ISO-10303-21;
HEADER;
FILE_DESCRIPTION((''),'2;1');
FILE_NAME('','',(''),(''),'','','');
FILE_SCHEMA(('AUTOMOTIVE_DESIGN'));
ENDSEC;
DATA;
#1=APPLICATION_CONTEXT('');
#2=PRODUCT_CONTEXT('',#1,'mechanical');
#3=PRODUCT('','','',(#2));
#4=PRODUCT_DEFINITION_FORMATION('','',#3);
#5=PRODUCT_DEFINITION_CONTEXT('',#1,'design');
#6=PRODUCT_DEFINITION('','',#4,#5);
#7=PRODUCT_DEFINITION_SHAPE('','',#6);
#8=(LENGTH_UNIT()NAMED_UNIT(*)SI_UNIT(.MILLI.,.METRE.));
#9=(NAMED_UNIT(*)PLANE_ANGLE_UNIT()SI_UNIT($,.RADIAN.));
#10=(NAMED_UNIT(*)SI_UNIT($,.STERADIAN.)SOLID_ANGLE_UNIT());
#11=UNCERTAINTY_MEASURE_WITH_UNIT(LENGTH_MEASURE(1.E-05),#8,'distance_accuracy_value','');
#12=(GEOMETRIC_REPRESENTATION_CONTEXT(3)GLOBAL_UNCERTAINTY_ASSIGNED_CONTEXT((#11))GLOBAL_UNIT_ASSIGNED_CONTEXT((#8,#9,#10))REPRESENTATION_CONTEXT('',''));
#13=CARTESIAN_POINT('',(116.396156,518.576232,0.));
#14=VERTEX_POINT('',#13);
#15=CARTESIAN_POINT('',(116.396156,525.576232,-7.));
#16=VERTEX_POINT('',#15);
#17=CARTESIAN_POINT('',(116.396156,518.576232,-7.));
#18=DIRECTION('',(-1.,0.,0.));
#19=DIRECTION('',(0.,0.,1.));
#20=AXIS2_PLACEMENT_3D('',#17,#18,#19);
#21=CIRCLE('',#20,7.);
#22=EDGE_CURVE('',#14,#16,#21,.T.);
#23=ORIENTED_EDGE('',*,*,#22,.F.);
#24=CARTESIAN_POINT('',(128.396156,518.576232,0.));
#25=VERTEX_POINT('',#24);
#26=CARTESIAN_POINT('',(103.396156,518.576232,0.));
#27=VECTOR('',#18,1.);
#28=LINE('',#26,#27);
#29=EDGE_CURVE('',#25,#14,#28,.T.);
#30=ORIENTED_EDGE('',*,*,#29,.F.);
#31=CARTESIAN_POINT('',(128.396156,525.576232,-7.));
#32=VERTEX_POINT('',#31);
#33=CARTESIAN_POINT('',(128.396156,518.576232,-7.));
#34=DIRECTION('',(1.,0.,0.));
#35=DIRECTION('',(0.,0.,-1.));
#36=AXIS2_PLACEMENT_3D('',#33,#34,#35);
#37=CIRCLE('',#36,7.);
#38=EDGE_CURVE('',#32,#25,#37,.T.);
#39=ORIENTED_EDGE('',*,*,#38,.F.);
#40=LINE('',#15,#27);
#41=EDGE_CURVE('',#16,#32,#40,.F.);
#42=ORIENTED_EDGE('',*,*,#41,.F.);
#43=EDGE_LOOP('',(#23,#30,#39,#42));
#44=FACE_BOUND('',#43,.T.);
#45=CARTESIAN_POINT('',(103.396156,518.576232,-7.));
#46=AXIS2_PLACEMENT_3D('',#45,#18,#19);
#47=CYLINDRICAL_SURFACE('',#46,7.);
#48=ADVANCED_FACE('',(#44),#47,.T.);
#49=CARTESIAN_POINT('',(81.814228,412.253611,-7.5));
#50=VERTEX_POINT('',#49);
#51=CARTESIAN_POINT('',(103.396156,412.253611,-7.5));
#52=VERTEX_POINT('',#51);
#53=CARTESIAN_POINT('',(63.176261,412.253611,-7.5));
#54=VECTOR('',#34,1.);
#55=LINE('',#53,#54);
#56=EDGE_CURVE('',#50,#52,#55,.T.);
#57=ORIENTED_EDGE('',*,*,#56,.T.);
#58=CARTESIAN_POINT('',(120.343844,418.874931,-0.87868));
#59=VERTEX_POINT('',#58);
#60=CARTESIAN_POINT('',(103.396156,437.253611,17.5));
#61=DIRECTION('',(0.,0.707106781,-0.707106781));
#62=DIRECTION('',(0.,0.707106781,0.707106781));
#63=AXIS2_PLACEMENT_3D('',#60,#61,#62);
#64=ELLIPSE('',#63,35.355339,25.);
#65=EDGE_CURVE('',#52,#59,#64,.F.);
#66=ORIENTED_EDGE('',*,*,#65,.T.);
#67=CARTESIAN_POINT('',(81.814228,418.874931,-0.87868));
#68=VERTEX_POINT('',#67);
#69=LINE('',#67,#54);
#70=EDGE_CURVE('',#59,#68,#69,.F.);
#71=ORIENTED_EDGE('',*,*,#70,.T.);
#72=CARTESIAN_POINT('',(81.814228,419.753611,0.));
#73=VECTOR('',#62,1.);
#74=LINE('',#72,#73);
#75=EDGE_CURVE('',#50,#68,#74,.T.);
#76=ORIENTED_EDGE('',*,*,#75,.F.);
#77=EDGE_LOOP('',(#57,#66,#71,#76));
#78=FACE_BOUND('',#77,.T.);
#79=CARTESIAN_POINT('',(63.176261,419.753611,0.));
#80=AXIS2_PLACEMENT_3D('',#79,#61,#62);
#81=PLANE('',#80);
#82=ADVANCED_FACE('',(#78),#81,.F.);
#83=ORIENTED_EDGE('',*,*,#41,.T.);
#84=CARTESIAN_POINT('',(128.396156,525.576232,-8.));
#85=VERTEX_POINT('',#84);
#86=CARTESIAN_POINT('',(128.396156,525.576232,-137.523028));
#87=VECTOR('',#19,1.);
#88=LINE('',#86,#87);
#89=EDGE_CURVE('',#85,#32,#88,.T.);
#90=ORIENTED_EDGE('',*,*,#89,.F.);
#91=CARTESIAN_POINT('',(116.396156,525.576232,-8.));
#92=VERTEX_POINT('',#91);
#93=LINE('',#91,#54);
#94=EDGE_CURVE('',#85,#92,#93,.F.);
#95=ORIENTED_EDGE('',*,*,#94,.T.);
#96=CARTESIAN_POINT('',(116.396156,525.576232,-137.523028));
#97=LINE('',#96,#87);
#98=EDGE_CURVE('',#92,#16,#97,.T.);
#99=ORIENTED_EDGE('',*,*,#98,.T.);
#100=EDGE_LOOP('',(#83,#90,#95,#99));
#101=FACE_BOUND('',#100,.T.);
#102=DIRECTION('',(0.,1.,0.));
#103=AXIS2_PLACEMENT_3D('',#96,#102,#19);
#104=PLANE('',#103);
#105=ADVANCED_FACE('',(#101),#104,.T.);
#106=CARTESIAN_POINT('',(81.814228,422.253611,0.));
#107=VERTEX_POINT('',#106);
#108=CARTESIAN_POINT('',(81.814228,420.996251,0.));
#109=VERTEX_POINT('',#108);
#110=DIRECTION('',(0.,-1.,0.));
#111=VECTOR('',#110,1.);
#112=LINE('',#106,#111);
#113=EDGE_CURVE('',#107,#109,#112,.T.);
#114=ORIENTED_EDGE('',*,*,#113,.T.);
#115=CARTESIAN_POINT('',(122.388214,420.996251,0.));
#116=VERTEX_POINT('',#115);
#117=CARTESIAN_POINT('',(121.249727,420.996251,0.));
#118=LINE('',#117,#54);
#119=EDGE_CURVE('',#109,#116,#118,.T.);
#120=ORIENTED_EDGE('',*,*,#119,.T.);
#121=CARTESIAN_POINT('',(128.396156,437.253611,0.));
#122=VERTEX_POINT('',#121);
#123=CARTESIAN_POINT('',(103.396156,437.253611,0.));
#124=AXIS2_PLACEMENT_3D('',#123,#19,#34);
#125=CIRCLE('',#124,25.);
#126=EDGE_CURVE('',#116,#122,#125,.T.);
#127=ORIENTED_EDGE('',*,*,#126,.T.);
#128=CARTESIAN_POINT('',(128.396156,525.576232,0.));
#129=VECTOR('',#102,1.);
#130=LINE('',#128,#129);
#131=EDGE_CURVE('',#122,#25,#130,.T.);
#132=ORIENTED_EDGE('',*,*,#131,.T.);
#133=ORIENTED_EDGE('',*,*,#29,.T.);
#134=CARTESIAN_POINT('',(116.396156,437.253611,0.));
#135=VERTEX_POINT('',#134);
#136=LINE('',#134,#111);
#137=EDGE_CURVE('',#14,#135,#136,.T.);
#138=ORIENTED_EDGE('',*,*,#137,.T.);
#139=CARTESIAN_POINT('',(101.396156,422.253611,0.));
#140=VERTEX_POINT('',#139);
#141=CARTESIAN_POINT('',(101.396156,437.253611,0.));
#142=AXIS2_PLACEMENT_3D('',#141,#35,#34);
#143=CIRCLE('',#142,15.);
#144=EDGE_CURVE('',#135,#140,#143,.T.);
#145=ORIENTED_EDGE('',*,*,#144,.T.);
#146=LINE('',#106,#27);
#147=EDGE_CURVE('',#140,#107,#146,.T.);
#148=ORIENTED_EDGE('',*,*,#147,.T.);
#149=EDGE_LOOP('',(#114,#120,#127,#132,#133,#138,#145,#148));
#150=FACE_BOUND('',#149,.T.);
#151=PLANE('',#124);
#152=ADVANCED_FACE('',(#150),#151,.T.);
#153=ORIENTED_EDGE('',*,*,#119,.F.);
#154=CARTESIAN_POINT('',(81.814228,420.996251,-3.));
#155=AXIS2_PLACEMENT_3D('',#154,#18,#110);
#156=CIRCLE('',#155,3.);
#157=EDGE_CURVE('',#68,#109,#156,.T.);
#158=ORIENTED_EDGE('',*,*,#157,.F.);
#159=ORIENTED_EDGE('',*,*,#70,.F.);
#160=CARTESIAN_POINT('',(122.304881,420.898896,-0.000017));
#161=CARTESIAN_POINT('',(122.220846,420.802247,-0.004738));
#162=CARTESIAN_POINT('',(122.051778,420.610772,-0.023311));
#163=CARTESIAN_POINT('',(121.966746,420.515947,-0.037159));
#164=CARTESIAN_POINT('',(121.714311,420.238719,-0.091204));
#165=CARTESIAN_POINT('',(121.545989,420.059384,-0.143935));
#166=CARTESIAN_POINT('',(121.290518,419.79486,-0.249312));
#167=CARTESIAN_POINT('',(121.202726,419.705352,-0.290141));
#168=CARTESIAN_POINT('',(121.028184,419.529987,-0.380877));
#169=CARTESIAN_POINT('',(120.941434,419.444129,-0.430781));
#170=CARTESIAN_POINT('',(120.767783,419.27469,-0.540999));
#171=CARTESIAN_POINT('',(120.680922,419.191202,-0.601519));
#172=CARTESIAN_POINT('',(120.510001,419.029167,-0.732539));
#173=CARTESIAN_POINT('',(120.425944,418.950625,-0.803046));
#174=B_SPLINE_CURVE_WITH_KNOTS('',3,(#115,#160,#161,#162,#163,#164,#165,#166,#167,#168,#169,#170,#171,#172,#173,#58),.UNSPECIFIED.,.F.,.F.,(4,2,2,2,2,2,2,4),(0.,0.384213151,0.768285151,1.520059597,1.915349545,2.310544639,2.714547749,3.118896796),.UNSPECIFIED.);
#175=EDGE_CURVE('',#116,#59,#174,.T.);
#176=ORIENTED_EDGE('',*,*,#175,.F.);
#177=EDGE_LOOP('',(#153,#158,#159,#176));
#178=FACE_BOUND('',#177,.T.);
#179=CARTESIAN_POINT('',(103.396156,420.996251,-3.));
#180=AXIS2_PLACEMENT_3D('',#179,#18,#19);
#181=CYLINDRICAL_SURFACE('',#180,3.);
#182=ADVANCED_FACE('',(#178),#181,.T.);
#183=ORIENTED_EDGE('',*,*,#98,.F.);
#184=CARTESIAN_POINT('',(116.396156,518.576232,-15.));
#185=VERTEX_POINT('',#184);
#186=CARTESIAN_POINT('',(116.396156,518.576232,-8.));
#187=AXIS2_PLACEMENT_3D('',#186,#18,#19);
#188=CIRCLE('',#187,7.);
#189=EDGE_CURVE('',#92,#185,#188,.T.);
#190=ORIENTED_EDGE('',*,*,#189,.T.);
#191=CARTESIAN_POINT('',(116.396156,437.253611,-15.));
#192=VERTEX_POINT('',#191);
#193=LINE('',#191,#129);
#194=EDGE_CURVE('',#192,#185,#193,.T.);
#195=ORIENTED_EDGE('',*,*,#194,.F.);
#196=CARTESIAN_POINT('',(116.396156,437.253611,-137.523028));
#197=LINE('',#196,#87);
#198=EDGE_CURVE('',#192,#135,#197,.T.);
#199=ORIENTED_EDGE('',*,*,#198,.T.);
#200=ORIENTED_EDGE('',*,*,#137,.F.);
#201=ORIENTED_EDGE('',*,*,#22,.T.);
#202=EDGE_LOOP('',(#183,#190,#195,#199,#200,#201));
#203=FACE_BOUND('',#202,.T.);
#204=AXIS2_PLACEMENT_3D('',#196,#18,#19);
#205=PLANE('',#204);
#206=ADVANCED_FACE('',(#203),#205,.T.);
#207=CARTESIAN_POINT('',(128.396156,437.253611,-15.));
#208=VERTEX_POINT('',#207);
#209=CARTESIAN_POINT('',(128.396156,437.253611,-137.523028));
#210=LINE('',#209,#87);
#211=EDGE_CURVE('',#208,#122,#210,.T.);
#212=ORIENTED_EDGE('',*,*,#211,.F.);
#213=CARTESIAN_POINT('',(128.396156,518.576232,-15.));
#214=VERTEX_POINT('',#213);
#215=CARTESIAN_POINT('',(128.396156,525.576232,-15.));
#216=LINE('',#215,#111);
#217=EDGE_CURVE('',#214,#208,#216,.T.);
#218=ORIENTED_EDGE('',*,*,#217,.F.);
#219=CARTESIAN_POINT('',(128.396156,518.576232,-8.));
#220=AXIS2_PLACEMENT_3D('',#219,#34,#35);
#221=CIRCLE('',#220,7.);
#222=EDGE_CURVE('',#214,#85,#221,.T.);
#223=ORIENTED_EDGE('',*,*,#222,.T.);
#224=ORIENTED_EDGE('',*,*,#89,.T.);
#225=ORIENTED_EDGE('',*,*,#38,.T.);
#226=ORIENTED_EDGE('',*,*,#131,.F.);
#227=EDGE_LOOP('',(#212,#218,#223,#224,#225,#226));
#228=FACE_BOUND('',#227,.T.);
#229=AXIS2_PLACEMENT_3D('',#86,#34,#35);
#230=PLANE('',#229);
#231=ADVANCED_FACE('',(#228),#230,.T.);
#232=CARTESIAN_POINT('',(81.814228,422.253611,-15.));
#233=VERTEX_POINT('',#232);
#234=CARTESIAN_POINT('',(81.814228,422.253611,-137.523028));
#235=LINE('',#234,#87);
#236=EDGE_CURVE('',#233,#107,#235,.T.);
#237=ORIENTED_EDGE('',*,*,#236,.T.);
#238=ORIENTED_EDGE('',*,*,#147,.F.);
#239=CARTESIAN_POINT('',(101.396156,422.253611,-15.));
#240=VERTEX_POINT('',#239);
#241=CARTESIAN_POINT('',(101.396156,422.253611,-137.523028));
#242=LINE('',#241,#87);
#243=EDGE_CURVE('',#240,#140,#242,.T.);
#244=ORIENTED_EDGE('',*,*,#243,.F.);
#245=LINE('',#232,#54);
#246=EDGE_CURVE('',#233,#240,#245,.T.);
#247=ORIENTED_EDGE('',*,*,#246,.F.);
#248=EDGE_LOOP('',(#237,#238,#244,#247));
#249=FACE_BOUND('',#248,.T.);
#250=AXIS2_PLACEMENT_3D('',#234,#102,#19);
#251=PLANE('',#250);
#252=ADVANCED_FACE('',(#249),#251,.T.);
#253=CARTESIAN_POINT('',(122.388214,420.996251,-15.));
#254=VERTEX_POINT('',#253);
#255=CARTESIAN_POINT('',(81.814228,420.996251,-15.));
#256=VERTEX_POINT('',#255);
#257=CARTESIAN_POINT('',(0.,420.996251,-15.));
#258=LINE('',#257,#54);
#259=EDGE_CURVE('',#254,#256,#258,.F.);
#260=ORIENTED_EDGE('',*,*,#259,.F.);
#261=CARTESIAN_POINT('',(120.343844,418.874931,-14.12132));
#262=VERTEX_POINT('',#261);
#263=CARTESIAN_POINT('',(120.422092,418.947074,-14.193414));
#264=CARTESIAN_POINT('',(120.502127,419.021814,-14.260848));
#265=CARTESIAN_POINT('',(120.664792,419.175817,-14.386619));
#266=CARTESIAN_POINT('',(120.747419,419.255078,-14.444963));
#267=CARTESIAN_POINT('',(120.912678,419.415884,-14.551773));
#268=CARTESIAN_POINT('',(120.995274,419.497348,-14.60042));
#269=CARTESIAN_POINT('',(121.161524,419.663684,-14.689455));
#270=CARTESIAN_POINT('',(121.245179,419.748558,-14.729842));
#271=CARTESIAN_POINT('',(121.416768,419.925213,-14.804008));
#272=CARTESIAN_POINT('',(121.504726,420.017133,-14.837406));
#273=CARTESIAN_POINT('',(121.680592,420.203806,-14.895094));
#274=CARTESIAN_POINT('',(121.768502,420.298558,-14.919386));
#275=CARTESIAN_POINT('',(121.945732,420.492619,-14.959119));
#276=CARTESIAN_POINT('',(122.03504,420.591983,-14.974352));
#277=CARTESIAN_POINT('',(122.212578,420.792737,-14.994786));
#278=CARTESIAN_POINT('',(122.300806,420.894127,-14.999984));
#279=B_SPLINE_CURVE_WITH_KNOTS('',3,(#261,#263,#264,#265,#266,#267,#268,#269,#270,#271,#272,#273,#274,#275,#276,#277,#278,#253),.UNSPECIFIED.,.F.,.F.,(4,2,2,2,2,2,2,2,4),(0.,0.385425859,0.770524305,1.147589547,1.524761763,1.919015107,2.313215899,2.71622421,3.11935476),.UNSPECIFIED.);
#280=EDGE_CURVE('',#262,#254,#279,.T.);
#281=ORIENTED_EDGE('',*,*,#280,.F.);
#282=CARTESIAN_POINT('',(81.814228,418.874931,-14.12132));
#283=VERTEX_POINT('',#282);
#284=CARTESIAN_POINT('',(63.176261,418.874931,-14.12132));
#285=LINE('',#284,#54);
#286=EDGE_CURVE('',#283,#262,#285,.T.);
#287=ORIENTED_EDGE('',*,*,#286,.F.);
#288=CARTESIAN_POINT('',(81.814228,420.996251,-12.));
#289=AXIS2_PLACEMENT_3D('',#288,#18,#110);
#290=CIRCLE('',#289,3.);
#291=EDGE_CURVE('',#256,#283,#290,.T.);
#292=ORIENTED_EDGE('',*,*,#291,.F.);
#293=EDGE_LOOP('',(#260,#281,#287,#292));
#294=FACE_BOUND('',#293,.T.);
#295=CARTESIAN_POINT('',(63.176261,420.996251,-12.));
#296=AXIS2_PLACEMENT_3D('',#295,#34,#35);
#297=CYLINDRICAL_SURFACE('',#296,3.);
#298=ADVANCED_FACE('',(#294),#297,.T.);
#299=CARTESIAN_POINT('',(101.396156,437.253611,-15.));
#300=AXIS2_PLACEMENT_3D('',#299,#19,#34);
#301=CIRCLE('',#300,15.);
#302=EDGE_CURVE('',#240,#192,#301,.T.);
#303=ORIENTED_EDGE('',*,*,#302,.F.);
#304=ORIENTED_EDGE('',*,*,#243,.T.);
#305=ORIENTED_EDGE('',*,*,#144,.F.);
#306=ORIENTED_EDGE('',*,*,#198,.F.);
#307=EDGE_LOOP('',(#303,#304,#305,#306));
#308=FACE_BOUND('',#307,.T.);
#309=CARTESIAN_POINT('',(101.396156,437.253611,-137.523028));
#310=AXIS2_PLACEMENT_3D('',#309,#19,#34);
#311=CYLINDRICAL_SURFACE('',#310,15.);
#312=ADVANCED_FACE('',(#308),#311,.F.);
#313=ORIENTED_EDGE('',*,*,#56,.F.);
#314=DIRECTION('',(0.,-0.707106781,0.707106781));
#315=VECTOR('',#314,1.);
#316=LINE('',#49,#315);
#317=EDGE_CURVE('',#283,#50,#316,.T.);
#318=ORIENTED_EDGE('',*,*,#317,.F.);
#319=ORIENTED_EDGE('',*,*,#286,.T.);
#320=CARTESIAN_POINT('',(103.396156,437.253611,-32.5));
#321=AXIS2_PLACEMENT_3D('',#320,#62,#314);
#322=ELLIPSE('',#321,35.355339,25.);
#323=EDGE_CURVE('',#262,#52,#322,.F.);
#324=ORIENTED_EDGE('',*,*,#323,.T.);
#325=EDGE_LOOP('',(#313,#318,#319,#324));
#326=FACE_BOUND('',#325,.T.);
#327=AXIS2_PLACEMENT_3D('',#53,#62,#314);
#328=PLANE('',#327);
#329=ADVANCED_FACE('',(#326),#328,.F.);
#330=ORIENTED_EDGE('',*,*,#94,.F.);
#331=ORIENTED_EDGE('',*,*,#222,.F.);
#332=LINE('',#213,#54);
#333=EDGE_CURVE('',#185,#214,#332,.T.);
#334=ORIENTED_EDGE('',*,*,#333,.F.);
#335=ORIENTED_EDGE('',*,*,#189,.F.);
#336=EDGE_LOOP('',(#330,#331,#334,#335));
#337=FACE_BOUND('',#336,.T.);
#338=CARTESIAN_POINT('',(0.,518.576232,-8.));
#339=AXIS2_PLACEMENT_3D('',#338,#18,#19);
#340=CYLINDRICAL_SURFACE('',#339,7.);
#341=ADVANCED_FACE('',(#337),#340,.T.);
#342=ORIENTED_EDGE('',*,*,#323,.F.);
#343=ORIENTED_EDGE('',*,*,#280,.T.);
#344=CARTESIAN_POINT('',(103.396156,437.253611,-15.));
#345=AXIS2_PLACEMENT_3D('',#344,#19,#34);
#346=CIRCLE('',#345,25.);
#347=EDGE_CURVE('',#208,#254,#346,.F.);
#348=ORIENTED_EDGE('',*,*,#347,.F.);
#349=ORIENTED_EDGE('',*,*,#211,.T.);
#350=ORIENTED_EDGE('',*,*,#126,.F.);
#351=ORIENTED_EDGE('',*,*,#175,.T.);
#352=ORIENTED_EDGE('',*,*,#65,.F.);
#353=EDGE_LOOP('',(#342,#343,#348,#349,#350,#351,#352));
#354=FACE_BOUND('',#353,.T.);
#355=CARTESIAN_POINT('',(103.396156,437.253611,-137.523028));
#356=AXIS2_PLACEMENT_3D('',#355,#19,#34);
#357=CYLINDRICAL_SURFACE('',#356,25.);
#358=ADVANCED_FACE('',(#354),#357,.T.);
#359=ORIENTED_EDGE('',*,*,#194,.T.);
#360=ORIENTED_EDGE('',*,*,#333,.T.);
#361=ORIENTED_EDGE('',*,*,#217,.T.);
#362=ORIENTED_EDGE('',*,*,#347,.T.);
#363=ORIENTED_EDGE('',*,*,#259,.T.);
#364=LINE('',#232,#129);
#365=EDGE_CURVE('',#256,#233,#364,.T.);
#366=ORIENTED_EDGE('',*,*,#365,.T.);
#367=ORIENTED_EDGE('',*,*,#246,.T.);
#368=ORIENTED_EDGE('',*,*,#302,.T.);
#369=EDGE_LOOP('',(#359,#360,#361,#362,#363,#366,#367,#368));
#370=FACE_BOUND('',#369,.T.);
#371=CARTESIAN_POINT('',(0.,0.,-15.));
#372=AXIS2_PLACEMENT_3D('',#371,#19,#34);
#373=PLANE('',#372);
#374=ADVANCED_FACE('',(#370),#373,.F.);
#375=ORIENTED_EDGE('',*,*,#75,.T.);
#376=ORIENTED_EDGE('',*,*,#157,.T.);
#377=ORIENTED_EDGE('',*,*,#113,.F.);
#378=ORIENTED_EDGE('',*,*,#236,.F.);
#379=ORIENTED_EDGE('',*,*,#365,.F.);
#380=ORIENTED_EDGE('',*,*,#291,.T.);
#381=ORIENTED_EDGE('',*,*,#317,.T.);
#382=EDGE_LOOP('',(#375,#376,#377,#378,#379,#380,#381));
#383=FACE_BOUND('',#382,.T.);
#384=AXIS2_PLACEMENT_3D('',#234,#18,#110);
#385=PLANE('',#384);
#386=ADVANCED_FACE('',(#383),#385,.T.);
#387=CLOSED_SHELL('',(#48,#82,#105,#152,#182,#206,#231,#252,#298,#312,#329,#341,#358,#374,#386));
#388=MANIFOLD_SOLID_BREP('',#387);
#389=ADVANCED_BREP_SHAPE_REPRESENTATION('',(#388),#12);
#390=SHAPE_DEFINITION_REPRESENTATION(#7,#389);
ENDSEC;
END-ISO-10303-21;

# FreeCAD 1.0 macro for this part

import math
import FreeCAD as App
import Part
import Sketcher
Q = App.Units.Quantity


def edges_at(feature, points):
    """Names of the edges that pass closest to the given points."""
    edges = feature.Shape.Edges
    near = lambda p: min(range(len(edges)), key=lambda i: edges[i].distToShape(Part.Vertex(*p))[0])
    return sorted({f"Edge{near(p) + 1}" for p in points})


def add_polygon(sketch, points):
    """Adds a closed chain of lines whose ends are joined by coincident constraints."""
    first, n = sketch.GeometryCount, len(points)
    for a, b in zip(points, points[1:] + points[:1]):
        sketch.addGeometry(Part.LineSegment(App.Vector(*a, 0), App.Vector(*b, 0)), False)
    for i in range(n):
        sketch.addConstraint(Sketcher.Constraint("Coincident", first + i, 2, first + (i + 1) % n, 1))

doc = App.newDocument("Part")
body = doc.addObject("PartDesign::Body", "Body")

sketch1 = doc.addObject("Sketcher::SketchObject", "Sketch")
body.addObject(sketch1)
sketch1.AttachmentSupport = (doc.XY_Plane, [""])
sketch1.MapMode = "FlatFace"
sketch1.addGeometry(Part.LineSegment(App.Vector(101, 422, 0), App.Vector(82, 422, 0)), False)
sketch1.addGeometry(Part.LineSegment(App.Vector(82, 422, 0), App.Vector(82, 412, 0)), False)
sketch1.addGeometry(Part.LineSegment(App.Vector(82, 412, 0), App.Vector(103, 412, 0)), False)
sketch1.addGeometry(Part.ArcOfCircle(Part.Circle(App.Vector(103, 437, 0), App.Vector(0, 0, 1), 25), math.radians(-90), math.radians(0)), False)
sketch1.addGeometry(Part.LineSegment(App.Vector(128, 437, 0), App.Vector(128, 526, 0)), False)
sketch1.addGeometry(Part.LineSegment(App.Vector(128, 526, 0), App.Vector(116, 526, 0)), False)
sketch1.addGeometry(Part.LineSegment(App.Vector(116, 526, 0), App.Vector(116, 437, 0)), False)
sketch1.addGeometry(Part.ArcOfCircle(Part.Circle(App.Vector(101, 437, 0), App.Vector(0, 0, 1), 15), math.radians(-90), math.radians(0)), False)
sketch1.addConstraint(Sketcher.Constraint("Coincident", 0, 2, 1, 1))
sketch1.addConstraint(Sketcher.Constraint("Coincident", 1, 2, 2, 1))
sketch1.addConstraint(Sketcher.Constraint("Tangent", 2, 2, 3, 1))
sketch1.addConstraint(Sketcher.Constraint("Tangent", 3, 2, 4, 1))
sketch1.addConstraint(Sketcher.Constraint("Coincident", 4, 2, 5, 1))
sketch1.addConstraint(Sketcher.Constraint("Coincident", 5, 2, 6, 1))
sketch1.addConstraint(Sketcher.Constraint("Tangent", 6, 2, 7, 2))
sketch1.addConstraint(Sketcher.Constraint("Tangent", 7, 1, 0, 1))
sketch1.addConstraint(Sketcher.Constraint("Horizontal", 0))
sketch1.addConstraint(Sketcher.Constraint("Vertical", 1))
sketch1.addConstraint(Sketcher.Constraint("Horizontal", 2))
sketch1.addConstraint(Sketcher.Constraint("Vertical", 4))
sketch1.addConstraint(Sketcher.Constraint("Horizontal", 5))
sketch1.addConstraint(Sketcher.Constraint("Vertical", 6))
sketch1.addConstraint(Sketcher.Constraint("Horizontal", 3, 3, 7, 3))
sketch1.addConstraint(Sketcher.Constraint("Radius", 3, Q("25 mm")))
sketch1.addConstraint(Sketcher.Constraint("Radius", 7, Q("15 mm")))
sketch1.addConstraint(Sketcher.Constraint("DistanceX", 5, 2, 5, 1, Q("12 mm")))
sketch1.addConstraint(Sketcher.Constraint("DistanceY", 4, 1, 4, 2, Q("88.322621 mm")))
sketch1.addConstraint(Sketcher.Constraint("DistanceX", 0, 2, 0, 1, Q("19.581927 mm")))
sketch1.addConstraint(Sketcher.Constraint("DistanceY", -1, 1, 3, 3, Q("437.253611 mm")))
sketch1.addConstraint(Sketcher.Constraint("DistanceX", -1, 1, 0, 2, Q("81.814228 mm")))
pad1 = doc.addObject("PartDesign::Pad", "Pad")
body.addObject(pad1)
pad1.Profile = sketch1
pad1.Length = 15
pad1.Reversed = True
doc.recompute()

fillet = doc.addObject("PartDesign::Fillet", "Fillet")
body.addObject(fillet)
fillet.Base = (pad1, edges_at(pad1, [(122.396, 525.576, -15), (122.396, 525.576, 0)]))
fillet.Radius = 7

sketch2 = doc.addObject("Sketcher::SketchObject", "Sketch001")
body.addObject(sketch2)
sketch2.AttachmentSupport = (doc.YZ_Plane, [""])
sketch2.MapMode = "FlatFace"
sketch2.AttachmentOffset = App.Placement(App.Vector(0, 0, 128.396156), App.Rotation())
add_polygon(sketch2, [(412, -8), (420, 0), (409, 0), (409, -15), (420, -15)])
sketch2.addConstraint(Sketcher.Constraint("Horizontal", 1))
sketch2.addConstraint(Sketcher.Constraint("Vertical", 2))
sketch2.addConstraint(Sketcher.Constraint("Horizontal", 3))
sketch2.addConstraint(Sketcher.Constraint("PointOnObject", 0, 2, -1))
sketch2.addConstraint(Sketcher.Constraint("Perpendicular", 0, 4))
sketch2.addConstraint(Sketcher.Constraint("Vertical", 0, 2, 3, 2))
sketch2.addConstraint(Sketcher.Constraint("Equal", 0, 4))
sketch2.addConstraint(Sketcher.Constraint("DistanceY", 2, 2, 2, 1, Q("15 mm")))
sketch2.addConstraint(Sketcher.Constraint("DistanceX", 1, 2, 1, 1, Q("11.06227 mm")))
sketch2.addConstraint(Sketcher.Constraint("DistanceX", -1, 1, 0, 2, Q("419.753611 mm")))
pocket1 = doc.addObject("PartDesign::Pocket", "Pocket")
body.addObject(pocket1)
pocket1.Profile = sketch2
pocket1.Length = 46.581927
doc.recompute()

fillet2 = doc.addObject("PartDesign::Fillet", "Fillet001")
body.addObject(fillet2)
fillet2.Base = (pocket1, edges_at(pocket1, [(101.532, 419.754, -15), (101.532, 419.754, 0)]))
fillet2.Radius = 3

doc.recompute()
